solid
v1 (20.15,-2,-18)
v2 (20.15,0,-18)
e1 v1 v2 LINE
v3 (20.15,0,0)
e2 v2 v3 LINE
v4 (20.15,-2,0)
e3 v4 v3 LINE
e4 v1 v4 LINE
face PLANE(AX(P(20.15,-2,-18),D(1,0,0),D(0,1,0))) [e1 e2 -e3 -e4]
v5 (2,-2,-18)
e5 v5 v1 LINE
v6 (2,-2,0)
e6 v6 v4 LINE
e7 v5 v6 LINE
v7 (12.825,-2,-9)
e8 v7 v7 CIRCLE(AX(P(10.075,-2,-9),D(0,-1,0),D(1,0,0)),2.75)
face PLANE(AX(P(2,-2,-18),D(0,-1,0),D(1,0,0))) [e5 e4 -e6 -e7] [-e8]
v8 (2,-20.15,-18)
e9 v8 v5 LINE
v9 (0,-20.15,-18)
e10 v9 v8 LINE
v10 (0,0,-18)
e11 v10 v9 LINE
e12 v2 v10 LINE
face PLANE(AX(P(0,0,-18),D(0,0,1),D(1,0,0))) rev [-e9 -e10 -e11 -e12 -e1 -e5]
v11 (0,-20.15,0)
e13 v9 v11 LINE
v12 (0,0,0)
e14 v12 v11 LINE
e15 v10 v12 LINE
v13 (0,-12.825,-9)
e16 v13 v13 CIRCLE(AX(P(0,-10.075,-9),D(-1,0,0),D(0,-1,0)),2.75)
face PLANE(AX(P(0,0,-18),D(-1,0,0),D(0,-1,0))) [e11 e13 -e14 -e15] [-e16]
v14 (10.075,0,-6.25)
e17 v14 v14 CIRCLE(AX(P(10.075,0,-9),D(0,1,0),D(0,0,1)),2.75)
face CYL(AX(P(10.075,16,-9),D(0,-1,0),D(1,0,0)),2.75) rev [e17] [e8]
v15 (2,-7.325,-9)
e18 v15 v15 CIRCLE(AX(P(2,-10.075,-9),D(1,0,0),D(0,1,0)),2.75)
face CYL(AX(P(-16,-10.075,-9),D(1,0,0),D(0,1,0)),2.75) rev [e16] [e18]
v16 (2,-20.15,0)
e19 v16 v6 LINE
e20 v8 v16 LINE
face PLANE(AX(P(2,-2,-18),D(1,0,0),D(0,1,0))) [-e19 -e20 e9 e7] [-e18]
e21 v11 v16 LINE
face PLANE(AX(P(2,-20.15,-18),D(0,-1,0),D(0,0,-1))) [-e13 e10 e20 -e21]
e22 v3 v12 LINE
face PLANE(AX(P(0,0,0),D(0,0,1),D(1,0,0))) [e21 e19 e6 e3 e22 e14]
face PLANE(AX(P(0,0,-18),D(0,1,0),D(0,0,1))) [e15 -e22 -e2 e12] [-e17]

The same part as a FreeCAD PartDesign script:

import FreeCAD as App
import Part
import Sketcher
Q = App.Units.Quantity

doc = App.newDocument("Part")
body = doc.addObject("PartDesign::Body", "Body")

# Sketch on XY plane
sketch1 = body.newObject("Sketcher::SketchObject", "Sketch")
sketch1.AttachmentSupport = (doc.getObject("XY_Plane"), [""])
sketch1.MapMode = "FlatFace"
sketch1.addGeometry([
    Part.LineSegment(App.Vector(0, 0, 0), App.Vector(0, -20.1, 0)),  # 0
    Part.LineSegment(App.Vector(0, -20.1, 0), App.Vector(2, -20.1, 0)),  # 1
    Part.LineSegment(App.Vector(2, -20.1, 0), App.Vector(2, -2, 0)),  # 2
    Part.LineSegment(App.Vector(2, -2, 0), App.Vector(20.1, -2, 0)),  # 3
    Part.LineSegment(App.Vector(20.1, -2, 0), App.Vector(20.1, 0, 0)),  # 4
    Part.LineSegment(App.Vector(20.1, 0, 0), App.Vector(0, 0, 0)),  # 5
], False)
sketch1.addConstraint([
    Sketcher.Constraint("Coincident", 0, 2, 1, 1),
    Sketcher.Constraint("Coincident", 1, 2, 2, 1),
    Sketcher.Constraint("Coincident", 2, 2, 3, 1),
    Sketcher.Constraint("Coincident", 3, 2, 4, 1),
    Sketcher.Constraint("Coincident", 4, 2, 5, 1),
    Sketcher.Constraint("Coincident", 5, 2, 0, 1),
    Sketcher.Constraint("Vertical", 0),
    Sketcher.Constraint("Horizontal", 1),
    Sketcher.Constraint("Vertical", 2),
    Sketcher.Constraint("Horizontal", 3),
    Sketcher.Constraint("Vertical", 4),
    Sketcher.Constraint("Horizontal", 5),
    Sketcher.Constraint("Coincident", 5, 2, -1, 1),
    Sketcher.Constraint("Equal", 5, 0),
    Sketcher.Constraint("Equal", 3, 2),
    Sketcher.Constraint("DistanceX", 1, 1, 1, 2, Q("2 mm")),
    Sketcher.Constraint("DistanceX", 3, 1, 3, 2, Q("18.15 mm")),
])
pad1 = body.newObject("PartDesign::Pad", "Pad")
pad1.Profile = sketch1
pad1.Length = 18
pad1.Reversed = True

# Sketch on XZ plane
sketch2 = body.newObject("Sketcher::SketchObject", "Sketch001")
sketch2.AttachmentSupport = (doc.getObject("XZ_Plane"), [""])
sketch2.MapMode = "FlatFace"
sketch2.AttachmentOffset = App.Placement(App.Vector(0, 0, 2), App.Rotation())
sketch2.addGeometry(Part.Circle(App.Vector(10.1, -9, 0), App.Vector(0, 0, 1), 2.8), False)
sketch2.addConstraint([
    Sketcher.Constraint("Diameter", 0, Q("5.5 mm")),
    Sketcher.Constraint("DistanceY", 0, 3, -1, 1, Q("9 mm")),
    Sketcher.Constraint("DistanceX", -1, 1, 0, 3, Q("10.075 mm")),
])
pocket1 = body.newObject("PartDesign::Pocket", "Pocket")
pocket1.Profile = sketch2
pocket1.Length = 18

# Sketch on YZ plane
sketch3 = body.newObject("Sketcher::SketchObject", "Sketch002")
sketch3.AttachmentSupport = (doc.getObject("YZ_Plane"), [""])
sketch3.MapMode = "FlatFace"
sketch3.AttachmentOffset = App.Placement(App.Vector(0, 0, 2), App.Rotation())
sketch3.addGeometry(Part.Circle(App.Vector(-10.1, -9, 0), App.Vector(0, 0, 1), 2.8), False)
sketch3.addConstraint([
    Sketcher.Constraint("Diameter", 0, Q("5.5 mm")),
    Sketcher.Constraint("DistanceY", 0, 3, -1, 1, Q("9 mm")),
    Sketcher.Constraint("DistanceX", 0, 3, -1, 1, Q("10.075 mm")),
])
pocket2 = body.newObject("PartDesign::Pocket", "Pocket001")
pocket2.Profile = sketch3
pocket2.Length = 18

doc.recompute()
